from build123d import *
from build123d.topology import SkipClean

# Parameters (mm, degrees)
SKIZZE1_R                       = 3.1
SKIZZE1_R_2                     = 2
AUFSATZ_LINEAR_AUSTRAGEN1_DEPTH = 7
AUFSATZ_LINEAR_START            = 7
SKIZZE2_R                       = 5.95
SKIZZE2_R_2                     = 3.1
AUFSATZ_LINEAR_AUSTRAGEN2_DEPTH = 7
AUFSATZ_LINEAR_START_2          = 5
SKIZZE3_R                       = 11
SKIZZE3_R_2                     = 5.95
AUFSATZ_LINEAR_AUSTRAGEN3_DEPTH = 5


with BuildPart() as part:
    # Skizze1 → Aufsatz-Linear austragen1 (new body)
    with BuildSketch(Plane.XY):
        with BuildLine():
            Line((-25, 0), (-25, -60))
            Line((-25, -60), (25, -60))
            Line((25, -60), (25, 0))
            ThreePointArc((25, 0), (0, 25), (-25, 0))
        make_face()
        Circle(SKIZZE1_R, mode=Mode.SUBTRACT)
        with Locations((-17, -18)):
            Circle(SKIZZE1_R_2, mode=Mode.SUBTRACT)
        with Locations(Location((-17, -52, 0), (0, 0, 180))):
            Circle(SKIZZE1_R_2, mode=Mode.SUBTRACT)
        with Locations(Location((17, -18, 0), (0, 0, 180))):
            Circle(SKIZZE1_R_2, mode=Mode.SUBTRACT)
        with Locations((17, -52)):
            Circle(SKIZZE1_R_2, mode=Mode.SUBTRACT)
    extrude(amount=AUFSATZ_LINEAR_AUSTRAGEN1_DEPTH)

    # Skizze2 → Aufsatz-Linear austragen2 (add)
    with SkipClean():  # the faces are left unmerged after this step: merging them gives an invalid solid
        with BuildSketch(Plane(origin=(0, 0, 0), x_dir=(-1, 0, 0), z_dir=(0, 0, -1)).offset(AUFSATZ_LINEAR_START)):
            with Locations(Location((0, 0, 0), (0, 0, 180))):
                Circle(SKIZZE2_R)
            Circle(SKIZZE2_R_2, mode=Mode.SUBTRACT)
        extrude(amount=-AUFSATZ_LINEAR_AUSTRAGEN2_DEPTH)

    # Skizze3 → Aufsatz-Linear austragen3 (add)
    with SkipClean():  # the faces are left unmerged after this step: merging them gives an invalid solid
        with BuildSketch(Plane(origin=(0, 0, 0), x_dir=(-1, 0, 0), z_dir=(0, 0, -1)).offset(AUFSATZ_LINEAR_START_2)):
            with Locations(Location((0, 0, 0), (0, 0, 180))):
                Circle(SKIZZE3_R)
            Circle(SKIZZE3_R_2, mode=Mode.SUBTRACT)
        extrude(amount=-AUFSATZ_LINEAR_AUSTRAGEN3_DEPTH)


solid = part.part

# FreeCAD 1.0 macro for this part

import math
import FreeCAD as App
import Part
import Sketcher
from FreeCAD import Vector
Q = App.Units.Quantity

doc = App.newDocument("Part")
body = doc.addObject("PartDesign::Body", "Body")

sketch1 = doc.addObject("Sketcher::SketchObject", "Sketch")
body.addObject(sketch1)
sketch1.AttachmentSupport = (doc.XY_Plane, [""])
sketch1.MapMode = "FlatFace"
sketch1.addGeometry(Part.LineSegment(Vector(-25, 0, 0), Vector(-25, -60, 0)), False)
sketch1.addGeometry(Part.LineSegment(Vector(-25, -60, 0), Vector(25, -60, 0)), False)
sketch1.addGeometry(Part.LineSegment(Vector(25, -60, 0), Vector(25, 0, 0)), False)
sketch1.addGeometry(Part.ArcOfCircle(Part.Circle(Vector(0, 0, 0), Vector(0, 0, 1), 25), math.radians(0), math.radians(180)), False)
sketch1.addGeometry(Part.Circle(Vector(-17, -52, 0), Vector(0, 0, 1), 2), False)
sketch1.addGeometry(Part.Circle(Vector(17, -52, 0), Vector(0, 0, 1), 2), False)
sketch1.addGeometry(Part.Circle(Vector(-17, -18, 0), Vector(0, 0, 1), 2), False)
sketch1.addGeometry(Part.Circle(Vector(17, -18, 0), Vector(0, 0, 1), 2), False)
sketch1.addGeometry(Part.Circle(Vector(0, 0, 0), Vector(0, 0, 1), 3.1), False)
sketch1.addConstraint(Sketcher.Constraint("Coincident", 0, 2, 1, 1))
sketch1.addConstraint(Sketcher.Constraint("Coincident", 1, 2, 2, 1))
sketch1.addConstraint(Sketcher.Constraint("Tangent", 2, 2, 3, 1))
sketch1.addConstraint(Sketcher.Constraint("Tangent", 3, 2, 0, 1))
sketch1.addConstraint(Sketcher.Constraint("Vertical", 0))
sketch1.addConstraint(Sketcher.Constraint("Horizontal", 1))
sketch1.addConstraint(Sketcher.Constraint("Vertical", 2))
sketch1.addConstraint(Sketcher.Constraint("Coincident", 3, 3, -1, 1))
sketch1.addConstraint(Sketcher.Constraint("Coincident", 8, 3, -1, 1))
sketch1.addConstraint(Sketcher.Constraint("Equal", 4, 5))
sketch1.addConstraint(Sketcher.Constraint("Equal", 5, 6))
sketch1.addConstraint(Sketcher.Constraint("Equal", 6, 7))
sketch1.addConstraint(Sketcher.Constraint("Symmetric", 4, 3, 5, 3, -2))
sketch1.addConstraint(Sketcher.Constraint("Symmetric", 6, 3, 7, 3, -2))
sketch1.addConstraint(Sketcher.Constraint("Vertical", 4, 3, 6, 3))
sketch1.addConstraint(Sketcher.Constraint("Diameter", 4, Q("4 mm")))
sketch1.addConstraint(Sketcher.Constraint("Radius", 3, Q("25 mm")))
sketch1.addConstraint(Sketcher.Constraint("Diameter", 8, Q("6.2 mm")))
sketch1.addConstraint(Sketcher.Constraint("DistanceY", 0, 2, 0, 1, Q("60 mm")))
sketch1.addConstraint(Sketcher.Constraint("DistanceX", 4, 3, -1, 1, Q("17 mm")))
sketch1.addConstraint(Sketcher.Constraint("DistanceY", 4, 3, -1, 1, Q("52 mm")))
sketch1.addConstraint(Sketcher.Constraint("DistanceY", 6, 3, -1, 1, Q("18 mm")))
pad1 = doc.addObject("PartDesign::Pad", "Pad")
body.addObject(pad1)
pad1.Profile = sketch1
pad1.Length = 7

sketch2 = doc.addObject("Sketcher::SketchObject", "Sketch001")
body.addObject(sketch2)
sketch2.AttachmentSupport = (doc.XY_Plane, [""])
sketch2.MapMode = "FlatFace"
sketch2.AttachmentOffset = App.Placement(Vector(0, 0, -7), App.Rotation())
sketch2.addGeometry(Part.Circle(Vector(0, 0, 0), Vector(0, 0, 1), 6), False)
sketch2.addGeometry(Part.Circle(Vector(0, 0, 0), Vector(0, 0, 1), 3.1), False)
sketch2.addConstraint(Sketcher.Constraint("Coincident", 0, 3, -1, 1))
sketch2.addConstraint(Sketcher.Constraint("Coincident", 1, 3, -1, 1))
sketch2.addConstraint(Sketcher.Constraint("Diameter", 0, Q("11.9 mm")))
sketch2.addConstraint(Sketcher.Constraint("Diameter", 1, Q("6.2 mm")))
pad2 = doc.addObject("PartDesign::Pad", "Pad001")
body.addObject(pad2)
pad2.Profile = sketch2
pad2.Length = 7

sketch3 = doc.addObject("Sketcher::SketchObject", "Sketch002")
body.addObject(sketch3)
sketch3.AttachmentSupport = (doc.XY_Plane, [""])
sketch3.MapMode = "FlatFace"
sketch3.AttachmentOffset = App.Placement(Vector(0, 0, -5), App.Rotation())
sketch3.addGeometry(Part.Circle(Vector(0, 0, 0), Vector(0, 0, 1), 11), False)
sketch3.addGeometry(Part.Circle(Vector(0, 0, 0), Vector(0, 0, 1), 6), False)
sketch3.addConstraint(Sketcher.Constraint("Coincident", 0, 3, -1, 1))
sketch3.addConstraint(Sketcher.Constraint("Coincident", 1, 3, -1, 1))
sketch3.addConstraint(Sketcher.Constraint("Diameter", 0, Q("22 mm")))
sketch3.addConstraint(Sketcher.Constraint("Diameter", 1, Q("11.9 mm")))
pad3 = doc.addObject("PartDesign::Pad", "Pad002")
body.addObject(pad3)
pad3.Profile = sketch3
pad3.Length = 5

doc.recompute()
